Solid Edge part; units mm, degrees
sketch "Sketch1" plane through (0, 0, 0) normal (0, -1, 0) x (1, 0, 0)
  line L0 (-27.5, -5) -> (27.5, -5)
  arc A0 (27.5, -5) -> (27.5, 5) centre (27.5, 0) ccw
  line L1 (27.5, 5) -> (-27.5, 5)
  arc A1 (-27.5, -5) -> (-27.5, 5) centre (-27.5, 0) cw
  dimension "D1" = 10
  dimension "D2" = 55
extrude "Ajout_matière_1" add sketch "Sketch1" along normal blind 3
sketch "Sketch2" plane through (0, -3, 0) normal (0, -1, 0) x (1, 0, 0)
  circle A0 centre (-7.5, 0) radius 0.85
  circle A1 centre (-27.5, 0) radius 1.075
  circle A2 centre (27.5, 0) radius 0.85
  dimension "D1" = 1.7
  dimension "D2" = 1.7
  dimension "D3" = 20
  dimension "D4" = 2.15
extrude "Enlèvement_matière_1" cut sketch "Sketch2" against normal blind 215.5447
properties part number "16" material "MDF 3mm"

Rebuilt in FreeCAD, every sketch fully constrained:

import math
import FreeCAD as App
import Part
import Sketcher

doc = App.newDocument("Part")
body = doc.addObject("PartDesign::Body", "Body")

# Sketch on XZ plane
sketch1 = doc.addObject("Sketcher::SketchObject", "Sketch")
body.addObject(sketch1)
sketch1.AttachmentSupport = (doc.XZ_Plane, [""])
sketch1.MapMode = "FlatFace"
sketch1.addGeometry([
    Part.ArcOfCircle(Part.Circle(App.Vector(-28, 0, 0), App.Vector(0, 0, 1), 5), math.radians(90), math.radians(270)),
    Part.LineSegment(App.Vector(-28, -5, 0), App.Vector(28, -5, 0)),
    Part.ArcOfCircle(Part.Circle(App.Vector(28, 0, 0), App.Vector(0, 0, 1), 5), math.radians(-90), math.radians(90)),
    Part.LineSegment(App.Vector(28, 5, 0), App.Vector(-28, 5, 0)),
], False)
sketch1.addConstraint([
    Sketcher.Constraint("Tangent", 0, 2, 1, 1),
    Sketcher.Constraint("Tangent", 1, 2, 2, 1),
    Sketcher.Constraint("Tangent", 2, 2, 3, 1),
    Sketcher.Constraint("Tangent", 3, 2, 0, 1),
    Sketcher.Constraint("Horizontal", 1),
    Sketcher.Constraint("Horizontal", 3),
    Sketcher.Constraint("Symmetric", 0, 3, 2, 3, -1, 1),
    Sketcher.Constraint("Radius", 0, 5.0),
    Sketcher.Constraint("DistanceX", 0, 3, -1, 1, 27.5),
])
pad1 = doc.addObject("PartDesign::Pad", "Pad")
body.addObject(pad1)
pad1.Profile = sketch1
pad1.Length = 3

# Sketch on XZ plane
sketch2 = doc.addObject("Sketcher::SketchObject", "Sketch001")
body.addObject(sketch2)
sketch2.AttachmentSupport = (doc.XZ_Plane, [""])
sketch2.MapMode = "FlatFace"
sketch2.AttachmentOffset = App.Placement(App.Vector(0, 0, 3), App.Rotation())
sketch2.addGeometry([
    Part.Circle(App.Vector(-7.5, 0, 0), App.Vector(0, 0, 1), 0.8),
    Part.Circle(App.Vector(-27.5, 0, 0), App.Vector(0, 0, 1), 1.1),
    Part.Circle(App.Vector(27.5, 0, 0), App.Vector(0, 0, 1), 0.8),
], False)
sketch2.addConstraint([
    Sketcher.Constraint("Equal", 0, 2),
    Sketcher.Constraint("Symmetric", 1, 3, 2, 3, -1, 1),
    Sketcher.Constraint("PointOnObject", 0, 3, -1),
    Sketcher.Constraint("PointOnObject", 1, 3, -1),
    Sketcher.Constraint("Diameter", 0, 1.7),
    Sketcher.Constraint("Diameter", 1, 2.15),
    Sketcher.Constraint("DistanceX", 1, 3, 0, 3, 20.0),
    Sketcher.Constraint("DistanceX", 0, 3, 2, 3, 35.0),
])
pocket1 = doc.addObject("PartDesign::Pocket", "Pocket")
body.addObject(pocket1)
pocket1.Profile = sketch2
pocket1.Length = 215.5447

doc.recompute()
